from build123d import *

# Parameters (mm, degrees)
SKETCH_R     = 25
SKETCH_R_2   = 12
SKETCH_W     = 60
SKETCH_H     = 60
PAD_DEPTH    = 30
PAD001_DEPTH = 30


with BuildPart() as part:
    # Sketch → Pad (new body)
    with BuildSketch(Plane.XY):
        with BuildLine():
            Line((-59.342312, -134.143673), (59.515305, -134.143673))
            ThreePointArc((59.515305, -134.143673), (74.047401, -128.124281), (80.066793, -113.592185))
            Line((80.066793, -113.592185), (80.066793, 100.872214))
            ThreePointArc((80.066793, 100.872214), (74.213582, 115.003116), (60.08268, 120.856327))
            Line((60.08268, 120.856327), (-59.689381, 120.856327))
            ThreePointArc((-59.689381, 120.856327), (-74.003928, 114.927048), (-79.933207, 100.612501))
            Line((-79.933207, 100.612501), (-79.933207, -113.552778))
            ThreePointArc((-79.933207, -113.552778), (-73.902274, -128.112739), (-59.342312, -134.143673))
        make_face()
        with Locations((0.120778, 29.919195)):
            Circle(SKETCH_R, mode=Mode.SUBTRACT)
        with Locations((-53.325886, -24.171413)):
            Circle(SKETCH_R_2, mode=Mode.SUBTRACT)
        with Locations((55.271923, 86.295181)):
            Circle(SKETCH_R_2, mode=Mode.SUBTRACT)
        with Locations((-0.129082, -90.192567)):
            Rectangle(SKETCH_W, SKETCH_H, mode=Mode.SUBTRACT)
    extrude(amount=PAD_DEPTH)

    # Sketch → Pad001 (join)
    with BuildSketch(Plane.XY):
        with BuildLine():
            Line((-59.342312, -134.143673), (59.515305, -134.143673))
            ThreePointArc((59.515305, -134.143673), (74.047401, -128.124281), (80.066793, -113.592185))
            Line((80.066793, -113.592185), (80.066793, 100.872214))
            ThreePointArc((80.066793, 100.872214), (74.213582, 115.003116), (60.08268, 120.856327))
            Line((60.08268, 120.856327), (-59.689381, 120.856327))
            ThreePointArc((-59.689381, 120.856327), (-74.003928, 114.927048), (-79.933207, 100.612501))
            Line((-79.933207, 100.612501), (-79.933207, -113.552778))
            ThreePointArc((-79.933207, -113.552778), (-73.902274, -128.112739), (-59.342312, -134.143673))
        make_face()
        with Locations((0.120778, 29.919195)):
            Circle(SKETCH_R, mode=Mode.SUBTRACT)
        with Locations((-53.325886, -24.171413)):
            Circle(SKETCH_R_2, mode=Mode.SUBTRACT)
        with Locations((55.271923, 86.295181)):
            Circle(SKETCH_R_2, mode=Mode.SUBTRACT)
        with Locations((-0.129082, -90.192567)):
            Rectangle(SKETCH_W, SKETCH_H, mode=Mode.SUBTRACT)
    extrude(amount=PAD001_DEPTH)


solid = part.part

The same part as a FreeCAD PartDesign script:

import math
import FreeCAD as App
import Part
import Sketcher
from FreeCAD import Vector
Q = App.Units.Quantity


def add_polygon(sketch, points):
    """Adds a closed chain of lines whose ends are joined by coincident constraints."""
    first, n = sketch.GeometryCount, len(points)
    for a, b in zip(points, points[1:] + points[:1]):
        sketch.addGeometry(Part.LineSegment(App.Vector(*a, 0), App.Vector(*b, 0)), False)
    for i in range(n):
        sketch.addConstraint(Sketcher.Constraint("Coincident", first + i, 2, first + (i + 1) % n, 1))

doc = App.newDocument("Part")
body = doc.addObject("PartDesign::Body", "Body")

# Sketch on XY plane
sketch1 = doc.addObject("Sketcher::SketchObject", "Sketch")
body.addObject(sketch1)
sketch1.AttachmentSupport = (doc.XY_Plane, [""])
sketch1.MapMode = "FlatFace"
sketch1.addGeometry(Part.LineSegment(Vector(-59, -134, 0), Vector(60, -134, 0)), False)  # 0
sketch1.addGeometry(Part.ArcOfCircle(Part.Circle(Vector(60, -114, 0), Vector(0, 0, 1), 21), math.radians(-90), math.radians(0)), False)  # 1
sketch1.addGeometry(Part.LineSegment(Vector(80, -114, 0), Vector(80, 101, 0)), False)  # 2
sketch1.addGeometry(Part.ArcOfCircle(Part.Circle(Vector(60, 101, 0), Vector(0, 0, 1), 20), math.radians(0), math.radians(90)), False)  # 3
sketch1.addGeometry(Part.LineSegment(Vector(60, 121, 0), Vector(-60, 121, 0)), False)  # 4
sketch1.addGeometry(Part.ArcOfCircle(Part.Circle(Vector(-60, 101, 0), Vector(0, 0, 1), 20), math.radians(90), math.radians(180)), False)  # 5
sketch1.addGeometry(Part.LineSegment(Vector(-80, 101, 0), Vector(-80, -114, 0)), False)  # 6
sketch1.addGeometry(Part.ArcOfCircle(Part.Circle(Vector(-59, -114, 0), Vector(0, 0, 1), 21), math.radians(180), math.radians(270)), False)  # 7
add_polygon(sketch1, [(30, -120), (-30, -120), (-30, -60), (30, -60)])  # lines 8-11
sketch1.addGeometry(Part.Circle(Vector(-53, -24, 0), Vector(0, 0, 1), 12), False)  # 12
sketch1.addGeometry(Part.Circle(Vector(0, 30, 0), Vector(0, 0, 1), 25), False)  # 13
sketch1.addGeometry(Part.Circle(Vector(55, 86, 0), Vector(0, 0, 1), 12), False)  # 14
sketch1.addConstraint([
    Sketcher.Constraint("Tangent", 0, 2, 1, 1),
    Sketcher.Constraint("Tangent", 1, 2, 2, 1),
    Sketcher.Constraint("Tangent", 2, 2, 3, 1),
    Sketcher.Constraint("Tangent", 3, 2, 4, 1),
    Sketcher.Constraint("Tangent", 4, 2, 5, 1),
    Sketcher.Constraint("Tangent", 5, 2, 6, 1),
    Sketcher.Constraint("Tangent", 6, 2, 7, 1),
    Sketcher.Constraint("Tangent", 7, 2, 0, 1),
    Sketcher.Constraint("Horizontal", 0),
    Sketcher.Constraint("Vertical", 2),
    Sketcher.Constraint("Horizontal", 4),
    Sketcher.Constraint("Vertical", 6),
    Sketcher.Constraint("Horizontal", 8),
    Sketcher.Constraint("Vertical", 9),
    Sketcher.Constraint("Horizontal", 10),
    Sketcher.Constraint("Vertical", 11),
    Sketcher.Constraint("Equal", 12, 14),
    Sketcher.Constraint("Equal", 10, 9),
    Sketcher.Constraint("Diameter", 12, Q("24 mm")),
    Sketcher.Constraint("Diameter", 13, Q("50 mm")),
    Sketcher.Constraint("DistanceX", 8, 2, 8, 1, Q("60 mm")),
    Sketcher.Constraint("DistanceX", 6, 2, 1, 2, Q("160 mm")),
    Sketcher.Constraint("Radius", 1, Q("20.55149 mm")),
    Sketcher.Constraint("DistanceY", 2, 1, 2, 2, Q("214.464399 mm")),
    Sketcher.Constraint("Radius", 3, Q("19.984112 mm")),
    Sketcher.Constraint("Radius", 5, Q("20.243825 mm")),
    Sketcher.Constraint("Radius", 7, Q("20.590895 mm")),
    Sketcher.Constraint("DistanceY", -1, 1, 5, 2, Q("100.612501 mm")),
    Sketcher.Constraint("DistanceX", -1, 1, 3, 3, Q("60.082681 mm")),
    Sketcher.Constraint("DistanceY", -1, 1, 14, 3, Q("86.295181 mm")),
    Sketcher.Constraint("DistanceX", 12, 3, 1, 3, Q("112.841189 mm")),
    Sketcher.Constraint("DistanceY", 1, 3, 12, 3, Q("89.42077 mm")),
    Sketcher.Constraint("DistanceY", 12, 3, 13, 3, Q("54.090608 mm")),
    Sketcher.Constraint("DistanceX", 5, 3, 13, 3, Q("59.81016 mm")),
    Sketcher.Constraint("DistanceX", 12, 3, 14, 3, Q("108.597809 mm")),
    Sketcher.Constraint("DistanceX", 7, 3, 8, 2, Q("29.21323 mm")),
    Sketcher.Constraint("DistanceY", 8, 2, 7, 3, Q("6.639789 mm")),
])
pad1 = doc.addObject("PartDesign::Pad", "Pad")
body.addObject(pad1)
pad1.Profile = sketch1
pad1.Length = 30

# Sketch on XY plane
sketch2 = doc.addObject("Sketcher::SketchObject", "Sketch001")
body.addObject(sketch2)
sketch2.AttachmentSupport = (doc.XY_Plane, [""])
sketch2.MapMode = "FlatFace"
sketch2.addGeometry(Part.LineSegment(Vector(-59, -134, 0), Vector(60, -134, 0)), False)  # 0
sketch2.addGeometry(Part.ArcOfCircle(Part.Circle(Vector(60, -114, 0), Vector(0, 0, 1), 21), math.radians(-90), math.radians(0)), False)  # 1
sketch2.addGeometry(Part.LineSegment(Vector(80, -114, 0), Vector(80, 101, 0)), False)  # 2
sketch2.addGeometry(Part.ArcOfCircle(Part.Circle(Vector(60, 101, 0), Vector(0, 0, 1), 20), math.radians(0), math.radians(90)), False)  # 3
sketch2.addGeometry(Part.LineSegment(Vector(60, 121, 0), Vector(-60, 121, 0)), False)  # 4
sketch2.addGeometry(Part.ArcOfCircle(Part.Circle(Vector(-60, 101, 0), Vector(0, 0, 1), 20), math.radians(90), math.radians(180)), False)  # 5
sketch2.addGeometry(Part.LineSegment(Vector(-80, 101, 0), Vector(-80, -114, 0)), False)  # 6
sketch2.addGeometry(Part.ArcOfCircle(Part.Circle(Vector(-59, -114, 0), Vector(0, 0, 1), 21), math.radians(180), math.radians(270)), False)  # 7
add_polygon(sketch2, [(30, -120), (-30, -120), (-30, -60), (30, -60)])  # lines 8-11
sketch2.addGeometry(Part.Circle(Vector(-53, -24, 0), Vector(0, 0, 1), 12), False)  # 12
sketch2.addGeometry(Part.Circle(Vector(0, 30, 0), Vector(0, 0, 1), 25), False)  # 13
sketch2.addGeometry(Part.Circle(Vector(55, 86, 0), Vector(0, 0, 1), 12), False)  # 14
sketch2.addConstraint([
    Sketcher.Constraint("Tangent", 0, 2, 1, 1),
    Sketcher.Constraint("Tangent", 1, 2, 2, 1),
    Sketcher.Constraint("Tangent", 2, 2, 3, 1),
    Sketcher.Constraint("Tangent", 3, 2, 4, 1),
    Sketcher.Constraint("Tangent", 4, 2, 5, 1),
    Sketcher.Constraint("Tangent", 5, 2, 6, 1),
    Sketcher.Constraint("Tangent", 6, 2, 7, 1),
    Sketcher.Constraint("Tangent", 7, 2, 0, 1),
    Sketcher.Constraint("Horizontal", 0),
    Sketcher.Constraint("Vertical", 2),
    Sketcher.Constraint("Horizontal", 4),
    Sketcher.Constraint("Vertical", 6),
    Sketcher.Constraint("Horizontal", 8),
    Sketcher.Constraint("Vertical", 9),
    Sketcher.Constraint("Horizontal", 10),
    Sketcher.Constraint("Vertical", 11),
    Sketcher.Constraint("Equal", 12, 14),
    Sketcher.Constraint("Equal", 10, 9),
    Sketcher.Constraint("Diameter", 12, Q("24 mm")),
    Sketcher.Constraint("Diameter", 13, Q("50 mm")),
    Sketcher.Constraint("DistanceX", 8, 2, 8, 1, Q("60 mm")),
    Sketcher.Constraint("DistanceX", 6, 2, 1, 2, Q("160 mm")),
    Sketcher.Constraint("Radius", 1, Q("20.55149 mm")),
    Sketcher.Constraint("DistanceY", 2, 1, 2, 2, Q("214.464399 mm")),
    Sketcher.Constraint("Radius", 3, Q("19.984112 mm")),
    Sketcher.Constraint("Radius", 5, Q("20.243825 mm")),
    Sketcher.Constraint("Radius", 7, Q("20.590895 mm")),
    Sketcher.Constraint("DistanceY", -1, 1, 5, 2, Q("100.612501 mm")),
    Sketcher.Constraint("DistanceX", -1, 1, 3, 3, Q("60.082681 mm")),
    Sketcher.Constraint("DistanceY", -1, 1, 14, 3, Q("86.295181 mm")),
    Sketcher.Constraint("DistanceX", 12, 3, 1, 3, Q("112.841189 mm")),
    Sketcher.Constraint("DistanceY", 1, 3, 12, 3, Q("89.42077 mm")),
    Sketcher.Constraint("DistanceY", 12, 3, 13, 3, Q("54.090608 mm")),
    Sketcher.Constraint("DistanceX", 5, 3, 13, 3, Q("59.81016 mm")),
    Sketcher.Constraint("DistanceX", 12, 3, 14, 3, Q("108.597809 mm")),
    Sketcher.Constraint("DistanceX", 7, 3, 8, 2, Q("29.21323 mm")),
    Sketcher.Constraint("DistanceY", 8, 2, 7, 3, Q("6.639789 mm")),
])
pad2 = doc.addObject("PartDesign::Pad", "Pad001")
body.addObject(pad2)
pad2.Profile = sketch2
pad2.Length = 30

doc.recompute()
